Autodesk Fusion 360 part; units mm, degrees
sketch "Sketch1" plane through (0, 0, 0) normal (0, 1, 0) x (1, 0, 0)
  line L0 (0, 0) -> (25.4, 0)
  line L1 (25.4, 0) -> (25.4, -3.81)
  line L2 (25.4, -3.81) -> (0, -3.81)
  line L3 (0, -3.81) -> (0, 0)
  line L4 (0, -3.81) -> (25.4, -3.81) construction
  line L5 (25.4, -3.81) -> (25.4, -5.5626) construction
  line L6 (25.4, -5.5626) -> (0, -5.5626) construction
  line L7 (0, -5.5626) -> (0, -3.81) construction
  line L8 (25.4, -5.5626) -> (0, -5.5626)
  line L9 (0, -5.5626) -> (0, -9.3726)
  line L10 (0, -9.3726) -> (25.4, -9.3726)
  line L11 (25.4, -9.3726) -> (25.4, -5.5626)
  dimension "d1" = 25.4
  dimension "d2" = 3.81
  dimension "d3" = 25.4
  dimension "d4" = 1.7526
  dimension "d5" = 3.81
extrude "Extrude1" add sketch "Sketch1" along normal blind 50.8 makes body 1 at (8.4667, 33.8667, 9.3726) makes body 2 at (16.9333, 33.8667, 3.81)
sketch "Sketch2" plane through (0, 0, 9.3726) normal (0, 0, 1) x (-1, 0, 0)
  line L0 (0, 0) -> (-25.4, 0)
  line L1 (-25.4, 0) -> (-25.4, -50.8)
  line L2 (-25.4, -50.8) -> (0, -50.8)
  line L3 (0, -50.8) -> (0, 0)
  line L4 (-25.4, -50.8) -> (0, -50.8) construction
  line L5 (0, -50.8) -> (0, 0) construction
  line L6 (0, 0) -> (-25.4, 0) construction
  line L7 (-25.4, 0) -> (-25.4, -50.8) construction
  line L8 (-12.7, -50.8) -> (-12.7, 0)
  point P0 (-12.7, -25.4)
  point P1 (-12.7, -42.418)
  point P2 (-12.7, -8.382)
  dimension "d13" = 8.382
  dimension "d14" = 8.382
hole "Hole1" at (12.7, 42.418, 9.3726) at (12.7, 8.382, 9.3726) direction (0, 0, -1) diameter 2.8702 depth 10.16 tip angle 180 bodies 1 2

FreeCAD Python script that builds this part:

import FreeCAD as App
import Part
import Sketcher
Q = App.Units.Quantity

doc = App.newDocument("Part")
body = doc.addObject("PartDesign::Body", "Body")
body.AllowCompound = True

# Sketch on XZ plane
sketch1 = body.newObject("Sketcher::SketchObject", "Sketch")
sketch1.AttachmentSupport = (doc.getObject("XZ_Plane"), [""])
sketch1.MapMode = "FlatFace"
sketch1.addGeometry([
    Part.LineSegment(App.Vector(25.4, 0, 0), App.Vector(0, 0, 0)),  # 0
    Part.LineSegment(App.Vector(0, 0, 0), App.Vector(0, 3.81, 0)),  # 1
    Part.LineSegment(App.Vector(0, 3.81, 0), App.Vector(25.4, 3.81, 0)),  # 2
    Part.LineSegment(App.Vector(25.4, 3.81, 0), App.Vector(25.4, 0, 0)),  # 3
    Part.LineSegment(App.Vector(25.4, 9.3726, 0), App.Vector(25.4, 5.5626, 0)),  # 4
    Part.LineSegment(App.Vector(25.4, 5.5626, 0), App.Vector(0, 5.5626, 0)),  # 5
    Part.LineSegment(App.Vector(0, 5.5626, 0), App.Vector(0, 9.3726, 0)),  # 6
    Part.LineSegment(App.Vector(0, 9.3726, 0), App.Vector(25.4, 9.3726, 0)),  # 7
], False)
sketch1.addConstraint([
    Sketcher.Constraint("Coincident", 0, 2, 1, 1),
    Sketcher.Constraint("Coincident", 1, 2, 2, 1),
    Sketcher.Constraint("Coincident", 2, 2, 3, 1),
    Sketcher.Constraint("Coincident", 3, 2, 0, 1),
    Sketcher.Constraint("Coincident", 4, 2, 5, 1),
    Sketcher.Constraint("Coincident", 5, 2, 6, 1),
    Sketcher.Constraint("Coincident", 6, 2, 7, 1),
    Sketcher.Constraint("Coincident", 7, 2, 4, 1),
    Sketcher.Constraint("Horizontal", 0),
    Sketcher.Constraint("Vertical", 1),
    Sketcher.Constraint("Horizontal", 2),
    Sketcher.Constraint("Vertical", 3),
    Sketcher.Constraint("Vertical", 4),
    Sketcher.Constraint("Horizontal", 5),
    Sketcher.Constraint("Vertical", 6),
    Sketcher.Constraint("Horizontal", 7),
    Sketcher.Constraint("Coincident", 0, 2, -1, 1),
    Sketcher.Constraint("PointOnObject", 5, 2, -2),
    Sketcher.Constraint("Vertical", 3, 2, 4, 2),
    Sketcher.Constraint("Equal", 3, 4),
    Sketcher.Constraint("DistanceX", 0, 2, 0, 1, Q("1 in")),
    Sketcher.Constraint("DistanceY", 1, 1, 1, 2, Q("0.15 in")),
    Sketcher.Constraint("DistanceY", 2, 2, 4, 2, Q("0.069 in")),
])
pad1 = body.newObject("PartDesign::Pad", "Pad")
pad1.Profile = sketch1
pad1.Length = Q("2 in")
pad1.Reversed = True

# Sketch on XY plane
sketch2 = body.newObject("Sketcher::SketchObject", "Sketch001")
sketch2.AttachmentSupport = (doc.getObject("XY_Plane"), [""])
sketch2.MapMode = "FlatFace"
sketch2.AttachmentOffset = App.Placement(App.Vector(0, 0, 0.369 * 25.4), App.Rotation())
sketch2.addGeometry([
    Part.Circle(App.Vector(12.7, 42.418, 0), App.Vector(0, 0, 1), 1.4351),
    Part.Circle(App.Vector(12.7, 8.382, 0), App.Vector(0, 0, 1), 1.4351),
], False)
sketch2.addConstraint([
    Sketcher.Constraint("Equal", 0, 1),
    Sketcher.Constraint("Vertical", 0, 3, 1, 3),
    Sketcher.Constraint("Diameter", 0, Q("0.113 in")),
    Sketcher.Constraint("DistanceX", -1, 1, 0, 3, Q("0.5 in")),
    Sketcher.Constraint("DistanceY", -1, 1, 0, 3, Q("1.67 in")),
    Sketcher.Constraint("DistanceY", -1, 1, 1, 3, Q("0.33 in")),
])
doc.recompute()
hole = body.newObject("PartDesign::Hole", "Hole")
hole.Profile = sketch2
hole.ThreadType = "None"
hole.Diameter = Q("0.113 in")
hole.DepthType = "Dimension"
hole.Depth = Q("0.4 in")
hole.DrillPoint = "Flat"

doc.recompute()
